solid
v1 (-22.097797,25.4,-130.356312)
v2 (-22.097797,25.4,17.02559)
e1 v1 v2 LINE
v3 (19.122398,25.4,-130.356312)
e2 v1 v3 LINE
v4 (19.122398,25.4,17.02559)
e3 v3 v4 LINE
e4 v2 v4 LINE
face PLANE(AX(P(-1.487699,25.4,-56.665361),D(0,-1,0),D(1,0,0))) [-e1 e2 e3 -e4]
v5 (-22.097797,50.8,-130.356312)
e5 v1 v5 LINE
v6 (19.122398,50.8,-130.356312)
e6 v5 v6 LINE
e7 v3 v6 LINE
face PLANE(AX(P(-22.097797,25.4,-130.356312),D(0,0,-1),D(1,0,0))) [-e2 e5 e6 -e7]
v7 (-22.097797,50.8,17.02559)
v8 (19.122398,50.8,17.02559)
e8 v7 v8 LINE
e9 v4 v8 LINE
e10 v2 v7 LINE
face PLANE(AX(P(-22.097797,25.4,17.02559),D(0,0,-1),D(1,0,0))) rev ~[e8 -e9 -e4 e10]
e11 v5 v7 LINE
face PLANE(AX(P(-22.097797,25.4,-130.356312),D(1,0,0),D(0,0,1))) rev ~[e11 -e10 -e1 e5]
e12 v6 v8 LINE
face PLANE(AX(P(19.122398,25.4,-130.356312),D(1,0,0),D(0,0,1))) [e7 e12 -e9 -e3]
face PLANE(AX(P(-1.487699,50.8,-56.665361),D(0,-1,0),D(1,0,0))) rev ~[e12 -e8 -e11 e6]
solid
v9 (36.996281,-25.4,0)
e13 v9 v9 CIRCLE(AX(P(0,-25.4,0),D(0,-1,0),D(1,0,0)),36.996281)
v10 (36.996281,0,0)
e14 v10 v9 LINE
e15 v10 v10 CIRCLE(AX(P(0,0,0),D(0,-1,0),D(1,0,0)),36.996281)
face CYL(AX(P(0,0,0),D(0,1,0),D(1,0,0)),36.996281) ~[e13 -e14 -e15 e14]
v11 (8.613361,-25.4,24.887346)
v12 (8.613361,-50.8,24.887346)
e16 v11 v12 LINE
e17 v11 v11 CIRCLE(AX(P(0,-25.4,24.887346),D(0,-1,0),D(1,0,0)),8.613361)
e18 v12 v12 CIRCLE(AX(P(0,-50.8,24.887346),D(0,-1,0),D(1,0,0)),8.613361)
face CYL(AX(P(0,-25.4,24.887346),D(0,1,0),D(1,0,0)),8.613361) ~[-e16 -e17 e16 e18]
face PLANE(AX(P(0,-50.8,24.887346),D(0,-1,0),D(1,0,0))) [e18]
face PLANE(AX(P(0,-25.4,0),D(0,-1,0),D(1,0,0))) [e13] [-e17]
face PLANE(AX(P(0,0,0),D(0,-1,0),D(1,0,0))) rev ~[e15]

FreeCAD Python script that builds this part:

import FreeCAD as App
import Part
import Sketcher
Q = App.Units.Quantity

doc = App.newDocument("Part")
body = doc.addObject("PartDesign::Body", "Body")

# Sketch on XZ plane
sketch1 = body.newObject("Sketcher::SketchObject", "Sketch")
sketch1.AttachmentSupport = (doc.getObject("XZ_Plane"), [""])
sketch1.MapMode = "FlatFace"
sketch1.addGeometry(Part.Circle(App.Vector(0, 0, 0), App.Vector(0, 0, 1), 37), False)
sketch1.addConstraint([
    Sketcher.Constraint("Coincident", 0, 3, -1, 1),
    Sketcher.Constraint("Diameter", 0, 73.992562),
])
pad1 = body.newObject("PartDesign::Pad", "Pad")
pad1.Profile = sketch1
pad1.Length = Q("1 in")

# Sketch on XZ plane
sketch2 = body.newObject("Sketcher::SketchObject", "Sketch001")
sketch2.AttachmentSupport = (doc.getObject("XZ_Plane"), [""])
sketch2.MapMode = "FlatFace"
sketch2.AttachmentOffset = App.Placement(App.Vector(0, 0, 1 * 25.4), App.Rotation())
sketch2.addGeometry(Part.Circle(App.Vector(0, 25, 0), App.Vector(0, 0, 1), 9), False)
sketch2.addConstraint([
    Sketcher.Constraint("PointOnObject", 0, 3, -2),
    Sketcher.Constraint("Diameter", 0, 17.226722),
    Sketcher.Constraint("DistanceY", -1, 1, 0, 3, 24.887346),
])
pad2 = body.newObject("PartDesign::Pad", "Pad001")
pad2.Profile = sketch2
pad2.Length = Q("1 in")
body2 = doc.addObject("PartDesign::Body", "Body001")

# Sketch on XZ plane
sketch3 = body2.newObject("Sketcher::SketchObject", "Sketch002")
sketch3.AttachmentSupport = (doc.getObject("XZ_Plane001"), [""])
sketch3.MapMode = "FlatFace"
sketch3.AttachmentOffset = App.Placement(App.Vector(0, 0, -1 * 25.4), App.Rotation())
sketch3.addGeometry([
    Part.LineSegment(App.Vector(-22, 17, 0), App.Vector(-22, -130, 0)),
    Part.LineSegment(App.Vector(-22, -130, 0), App.Vector(19, -130, 0)),
    Part.LineSegment(App.Vector(19, -130, 0), App.Vector(19, 17, 0)),
    Part.LineSegment(App.Vector(19, 17, 0), App.Vector(-22, 17, 0)),
], False)
sketch3.addConstraint([
    Sketcher.Constraint("Coincident", 0, 2, 1, 1),
    Sketcher.Constraint("Coincident", 1, 2, 2, 1),
    Sketcher.Constraint("Coincident", 2, 2, 3, 1),
    Sketcher.Constraint("Coincident", 3, 2, 0, 1),
    Sketcher.Constraint("Vertical", 0),
    Sketcher.Constraint("Horizontal", 1),
    Sketcher.Constraint("Vertical", 2),
    Sketcher.Constraint("Horizontal", 3),
    Sketcher.Constraint("DistanceY", 0, 2, 0, 1, 147.381902),
    Sketcher.Constraint("DistanceX", -1, 1, 1, 2, 19.122398),
    Sketcher.Constraint("DistanceX", 1, 1, 1, 2, 41.220195),
    Sketcher.Constraint("DistanceY", 0, 2, -1, 1, 130.356312),
])
pad3 = body2.newObject("PartDesign::Pad", "Pad002")
pad3.Profile = sketch3
pad3.Length = Q("1 in")
pad3.Reversed = True

doc.recompute()
